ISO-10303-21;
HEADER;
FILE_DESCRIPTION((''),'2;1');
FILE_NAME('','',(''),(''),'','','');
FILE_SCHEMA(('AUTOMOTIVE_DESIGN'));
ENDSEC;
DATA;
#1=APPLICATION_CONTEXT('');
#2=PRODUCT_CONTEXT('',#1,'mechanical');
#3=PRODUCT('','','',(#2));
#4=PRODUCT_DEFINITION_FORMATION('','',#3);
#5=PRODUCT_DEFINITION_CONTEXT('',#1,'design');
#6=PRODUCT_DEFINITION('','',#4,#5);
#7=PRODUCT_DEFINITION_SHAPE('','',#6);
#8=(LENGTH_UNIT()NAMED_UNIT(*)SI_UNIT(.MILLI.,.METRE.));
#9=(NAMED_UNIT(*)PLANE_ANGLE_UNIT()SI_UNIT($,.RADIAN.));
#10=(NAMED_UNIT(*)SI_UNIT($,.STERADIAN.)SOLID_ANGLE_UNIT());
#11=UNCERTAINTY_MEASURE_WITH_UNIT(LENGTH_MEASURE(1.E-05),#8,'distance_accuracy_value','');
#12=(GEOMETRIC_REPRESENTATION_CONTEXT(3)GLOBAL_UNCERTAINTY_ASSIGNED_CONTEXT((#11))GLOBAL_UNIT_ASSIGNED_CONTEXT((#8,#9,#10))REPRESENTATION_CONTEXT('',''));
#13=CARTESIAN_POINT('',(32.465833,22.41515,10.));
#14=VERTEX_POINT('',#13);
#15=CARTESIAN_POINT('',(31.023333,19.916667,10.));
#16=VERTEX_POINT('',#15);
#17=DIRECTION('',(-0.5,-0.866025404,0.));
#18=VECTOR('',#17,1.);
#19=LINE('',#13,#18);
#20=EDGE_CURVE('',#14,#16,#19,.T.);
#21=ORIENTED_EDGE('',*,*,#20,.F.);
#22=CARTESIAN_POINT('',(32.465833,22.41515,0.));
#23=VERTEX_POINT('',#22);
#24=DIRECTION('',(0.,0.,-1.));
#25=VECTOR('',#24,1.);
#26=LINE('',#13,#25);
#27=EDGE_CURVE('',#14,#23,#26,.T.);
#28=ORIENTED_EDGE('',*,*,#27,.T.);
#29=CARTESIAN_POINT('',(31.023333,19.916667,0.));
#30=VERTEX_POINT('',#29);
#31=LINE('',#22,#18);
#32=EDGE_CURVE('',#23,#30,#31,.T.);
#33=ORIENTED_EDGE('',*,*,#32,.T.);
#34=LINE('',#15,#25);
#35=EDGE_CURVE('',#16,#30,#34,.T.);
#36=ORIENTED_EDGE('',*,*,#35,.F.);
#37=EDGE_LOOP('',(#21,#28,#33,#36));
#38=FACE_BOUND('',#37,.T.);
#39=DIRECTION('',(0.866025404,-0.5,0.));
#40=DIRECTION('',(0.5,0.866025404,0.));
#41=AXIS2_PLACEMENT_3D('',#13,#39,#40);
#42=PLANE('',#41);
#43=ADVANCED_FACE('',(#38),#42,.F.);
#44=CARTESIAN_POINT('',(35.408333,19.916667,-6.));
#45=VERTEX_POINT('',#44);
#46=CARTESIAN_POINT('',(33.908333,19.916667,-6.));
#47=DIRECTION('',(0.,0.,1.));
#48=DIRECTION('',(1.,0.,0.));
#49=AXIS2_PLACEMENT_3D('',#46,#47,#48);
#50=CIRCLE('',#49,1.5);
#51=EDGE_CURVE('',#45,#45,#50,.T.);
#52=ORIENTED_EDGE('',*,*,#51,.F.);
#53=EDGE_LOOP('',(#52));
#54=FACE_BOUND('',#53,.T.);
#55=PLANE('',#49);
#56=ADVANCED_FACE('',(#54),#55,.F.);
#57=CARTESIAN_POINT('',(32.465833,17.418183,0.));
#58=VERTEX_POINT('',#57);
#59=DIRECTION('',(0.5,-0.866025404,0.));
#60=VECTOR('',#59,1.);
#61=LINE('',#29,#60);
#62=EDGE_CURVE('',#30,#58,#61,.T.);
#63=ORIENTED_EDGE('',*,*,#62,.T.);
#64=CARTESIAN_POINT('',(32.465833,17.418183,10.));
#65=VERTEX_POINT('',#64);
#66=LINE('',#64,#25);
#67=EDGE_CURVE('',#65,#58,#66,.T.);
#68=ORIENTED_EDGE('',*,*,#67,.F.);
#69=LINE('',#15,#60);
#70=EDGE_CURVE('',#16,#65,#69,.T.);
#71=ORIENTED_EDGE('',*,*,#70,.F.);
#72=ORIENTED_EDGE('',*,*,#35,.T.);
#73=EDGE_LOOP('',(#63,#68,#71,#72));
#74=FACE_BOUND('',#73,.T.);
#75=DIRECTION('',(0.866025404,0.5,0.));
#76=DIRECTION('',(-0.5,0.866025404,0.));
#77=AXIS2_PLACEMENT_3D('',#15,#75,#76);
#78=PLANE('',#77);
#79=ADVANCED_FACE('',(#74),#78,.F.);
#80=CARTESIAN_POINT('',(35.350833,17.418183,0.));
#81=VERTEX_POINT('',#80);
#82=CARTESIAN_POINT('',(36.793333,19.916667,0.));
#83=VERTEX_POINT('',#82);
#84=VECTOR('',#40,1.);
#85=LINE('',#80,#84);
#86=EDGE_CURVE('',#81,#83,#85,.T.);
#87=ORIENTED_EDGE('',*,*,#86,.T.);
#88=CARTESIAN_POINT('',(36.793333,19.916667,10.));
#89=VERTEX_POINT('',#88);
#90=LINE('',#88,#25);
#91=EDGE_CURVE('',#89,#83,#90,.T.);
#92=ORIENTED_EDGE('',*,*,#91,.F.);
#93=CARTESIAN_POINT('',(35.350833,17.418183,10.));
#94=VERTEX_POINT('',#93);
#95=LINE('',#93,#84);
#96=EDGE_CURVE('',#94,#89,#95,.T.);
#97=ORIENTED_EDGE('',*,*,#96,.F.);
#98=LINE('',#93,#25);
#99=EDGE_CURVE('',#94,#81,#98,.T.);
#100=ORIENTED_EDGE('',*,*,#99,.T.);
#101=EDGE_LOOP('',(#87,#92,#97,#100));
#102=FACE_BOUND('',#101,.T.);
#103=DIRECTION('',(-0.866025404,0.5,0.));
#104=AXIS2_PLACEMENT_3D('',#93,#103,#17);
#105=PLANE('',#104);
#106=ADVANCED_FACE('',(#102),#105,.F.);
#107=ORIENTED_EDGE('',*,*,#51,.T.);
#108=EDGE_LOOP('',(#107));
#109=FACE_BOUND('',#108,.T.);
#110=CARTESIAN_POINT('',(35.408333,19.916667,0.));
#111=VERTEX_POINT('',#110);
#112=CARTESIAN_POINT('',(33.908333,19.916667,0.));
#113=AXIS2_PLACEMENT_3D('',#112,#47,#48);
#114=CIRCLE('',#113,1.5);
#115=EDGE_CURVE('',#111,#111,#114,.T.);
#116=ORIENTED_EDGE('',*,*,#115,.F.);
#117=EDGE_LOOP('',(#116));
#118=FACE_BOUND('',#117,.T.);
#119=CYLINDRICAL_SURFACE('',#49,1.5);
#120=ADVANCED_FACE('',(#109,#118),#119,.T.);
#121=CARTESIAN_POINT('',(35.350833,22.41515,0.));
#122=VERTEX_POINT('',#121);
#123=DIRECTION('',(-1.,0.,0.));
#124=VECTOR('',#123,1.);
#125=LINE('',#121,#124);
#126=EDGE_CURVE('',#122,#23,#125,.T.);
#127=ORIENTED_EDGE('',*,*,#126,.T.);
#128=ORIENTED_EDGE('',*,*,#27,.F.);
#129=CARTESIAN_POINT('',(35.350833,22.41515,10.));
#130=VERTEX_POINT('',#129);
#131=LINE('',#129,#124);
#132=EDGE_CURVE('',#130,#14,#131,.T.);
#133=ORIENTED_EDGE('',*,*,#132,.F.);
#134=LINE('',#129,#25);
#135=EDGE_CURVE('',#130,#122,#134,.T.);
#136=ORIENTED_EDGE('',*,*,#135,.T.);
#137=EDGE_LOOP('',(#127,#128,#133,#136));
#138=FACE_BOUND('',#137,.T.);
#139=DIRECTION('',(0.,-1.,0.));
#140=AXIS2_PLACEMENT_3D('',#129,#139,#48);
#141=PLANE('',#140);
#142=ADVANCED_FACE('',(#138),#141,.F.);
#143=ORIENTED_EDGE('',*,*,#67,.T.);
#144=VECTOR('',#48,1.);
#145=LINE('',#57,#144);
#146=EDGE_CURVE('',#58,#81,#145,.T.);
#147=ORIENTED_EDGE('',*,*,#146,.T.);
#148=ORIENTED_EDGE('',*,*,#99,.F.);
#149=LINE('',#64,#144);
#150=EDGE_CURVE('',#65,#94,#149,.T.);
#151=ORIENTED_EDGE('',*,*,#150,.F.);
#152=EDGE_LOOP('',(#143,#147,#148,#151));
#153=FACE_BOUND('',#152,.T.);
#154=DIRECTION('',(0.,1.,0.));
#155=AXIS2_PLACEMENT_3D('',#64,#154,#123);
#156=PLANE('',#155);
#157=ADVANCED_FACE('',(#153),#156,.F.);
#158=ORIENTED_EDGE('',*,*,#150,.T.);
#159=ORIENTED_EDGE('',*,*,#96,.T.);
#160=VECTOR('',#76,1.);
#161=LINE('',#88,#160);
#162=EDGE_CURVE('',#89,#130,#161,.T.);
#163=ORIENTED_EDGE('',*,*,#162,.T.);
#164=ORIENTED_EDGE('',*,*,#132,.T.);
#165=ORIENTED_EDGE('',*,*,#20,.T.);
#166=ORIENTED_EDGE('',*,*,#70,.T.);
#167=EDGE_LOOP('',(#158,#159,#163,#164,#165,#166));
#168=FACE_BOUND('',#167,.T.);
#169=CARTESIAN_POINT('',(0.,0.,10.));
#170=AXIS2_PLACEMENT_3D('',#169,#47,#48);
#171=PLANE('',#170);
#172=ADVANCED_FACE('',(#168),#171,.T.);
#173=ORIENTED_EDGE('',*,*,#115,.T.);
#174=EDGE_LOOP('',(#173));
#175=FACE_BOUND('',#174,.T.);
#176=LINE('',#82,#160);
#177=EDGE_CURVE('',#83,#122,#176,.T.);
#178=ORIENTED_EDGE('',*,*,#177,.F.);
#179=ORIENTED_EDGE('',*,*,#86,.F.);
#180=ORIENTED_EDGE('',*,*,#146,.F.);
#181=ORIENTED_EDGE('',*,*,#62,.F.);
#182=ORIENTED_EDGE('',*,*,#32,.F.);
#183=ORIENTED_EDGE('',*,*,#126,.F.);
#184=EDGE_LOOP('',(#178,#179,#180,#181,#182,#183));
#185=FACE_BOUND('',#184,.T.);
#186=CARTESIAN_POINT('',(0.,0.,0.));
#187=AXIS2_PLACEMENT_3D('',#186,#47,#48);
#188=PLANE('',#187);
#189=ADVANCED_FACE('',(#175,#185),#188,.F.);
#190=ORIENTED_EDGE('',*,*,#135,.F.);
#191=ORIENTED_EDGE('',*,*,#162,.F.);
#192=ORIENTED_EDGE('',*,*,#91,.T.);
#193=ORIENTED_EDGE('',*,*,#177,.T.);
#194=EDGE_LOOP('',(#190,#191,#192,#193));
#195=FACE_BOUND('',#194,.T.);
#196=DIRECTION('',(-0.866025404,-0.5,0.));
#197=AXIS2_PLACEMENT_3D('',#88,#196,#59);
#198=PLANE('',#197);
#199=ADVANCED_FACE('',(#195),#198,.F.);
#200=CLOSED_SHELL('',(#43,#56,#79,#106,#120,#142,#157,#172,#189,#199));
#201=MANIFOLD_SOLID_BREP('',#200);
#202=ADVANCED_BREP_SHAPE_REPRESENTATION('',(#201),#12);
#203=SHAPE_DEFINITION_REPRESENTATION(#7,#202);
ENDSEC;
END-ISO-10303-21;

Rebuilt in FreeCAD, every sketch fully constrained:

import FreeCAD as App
import Part
import Sketcher

V = App.Vector
Q = App.Units.Quantity


def add_polygon(sketch, points):
    """Adds a closed chain of lines whose ends are joined by coincident constraints."""
    first, n = sketch.GeometryCount, len(points)
    for a, b in zip(points, points[1:] + points[:1]):
        sketch.addGeometry(Part.LineSegment(App.Vector(*a, 0), App.Vector(*b, 0)), False)
    for i in range(n):
        sketch.addConstraint(Sketcher.Constraint("Coincident", first + i, 2, first + (i + 1) % n, 1))

doc = App.newDocument("Part")
params = doc.addObject("Spreadsheet::Sheet", "Params")
for row, (alias, value) in enumerate([
    ("pad1_length", "10 mm"),
    ("sketch2_diameter", "3 mm"),
    ("pad2_length", "6 mm"),
], start=1):
    params.set(f"A{row}", alias)
    params.set(f"B{row}", "=" + value)
    params.setAlias(f"B{row}", alias)

body = doc.addObject("PartDesign::Body", "Body")

# Sketch on XY plane
sketch1 = body.newObject("Sketcher::SketchObject", "Sketch")
sketch1.AttachmentSupport = (doc.getObject("XY_Plane"), [""])
sketch1.MapMode = "FlatFace"
add_polygon(sketch1, [(35.350833, 22.41515), (32.465833, 22.41515), (31.023333, 19.916667), (32.465833, 17.418183), (35.350833, 17.418183), (36.793333, 19.916667)])  # lines 0-5
sketch1.addConstraint([
    Sketcher.Constraint("Horizontal", 0),
    Sketcher.Constraint("Horizontal", 3),
    Sketcher.Constraint("Parallel", 1, 4),
    Sketcher.Constraint("Parallel", 2, 5),
    Sketcher.Constraint("Horizontal", 1, 2, 4, 2),
    Sketcher.Constraint("Vertical", 0, 2, 2, 2),
    Sketcher.Constraint("Vertical", 3, 2, 5, 2),
    Sketcher.Constraint("Angle", 1, Q("-120 deg")),
    Sketcher.Constraint("DistanceX", 0, 2, 0, 1, Q("2.885 mm")),
    Sketcher.Constraint("DistanceX", 1, 2, 4, 2, Q("5.77 mm")),
    Sketcher.Constraint("DistanceY", -1, 1, 0, 2, Q("22.41515 mm")),
    Sketcher.Constraint("DistanceX", -1, 1, 0, 2, Q("32.465833 mm")),
])
pad1 = body.newObject("PartDesign::Pad", "Pad")
pad1.Profile = sketch1
pad1.setExpression("Length", "Params.pad1_length")

# Sketch on XY plane
sketch2 = body.newObject("Sketcher::SketchObject", "Sketch001")
sketch2.AttachmentSupport = (doc.getObject("XY_Plane"), [""])
sketch2.MapMode = "FlatFace"
sketch2.addGeometry(Part.Circle(V(33.908333, 19.916667, 0), V(0, 0, 1), 1.5), False)
sketch2.addConstraint([
    Sketcher.Constraint("Diameter", 0, Q("3 mm")),
    Sketcher.Constraint("DistanceX", -1, 1, 0, 3, Q("33.908333 mm")),
    Sketcher.Constraint("DistanceY", -1, 1, 0, 3, Q("19.916667 mm")),
])
sketch2.setExpression("Constraints[0]", "Params.sketch2_diameter")
pad2 = body.newObject("PartDesign::Pad", "Pad001")
pad2.Profile = sketch2
pad2.setExpression("Length", "Params.pad2_length")
pad2.Reversed = True

doc.recompute()
